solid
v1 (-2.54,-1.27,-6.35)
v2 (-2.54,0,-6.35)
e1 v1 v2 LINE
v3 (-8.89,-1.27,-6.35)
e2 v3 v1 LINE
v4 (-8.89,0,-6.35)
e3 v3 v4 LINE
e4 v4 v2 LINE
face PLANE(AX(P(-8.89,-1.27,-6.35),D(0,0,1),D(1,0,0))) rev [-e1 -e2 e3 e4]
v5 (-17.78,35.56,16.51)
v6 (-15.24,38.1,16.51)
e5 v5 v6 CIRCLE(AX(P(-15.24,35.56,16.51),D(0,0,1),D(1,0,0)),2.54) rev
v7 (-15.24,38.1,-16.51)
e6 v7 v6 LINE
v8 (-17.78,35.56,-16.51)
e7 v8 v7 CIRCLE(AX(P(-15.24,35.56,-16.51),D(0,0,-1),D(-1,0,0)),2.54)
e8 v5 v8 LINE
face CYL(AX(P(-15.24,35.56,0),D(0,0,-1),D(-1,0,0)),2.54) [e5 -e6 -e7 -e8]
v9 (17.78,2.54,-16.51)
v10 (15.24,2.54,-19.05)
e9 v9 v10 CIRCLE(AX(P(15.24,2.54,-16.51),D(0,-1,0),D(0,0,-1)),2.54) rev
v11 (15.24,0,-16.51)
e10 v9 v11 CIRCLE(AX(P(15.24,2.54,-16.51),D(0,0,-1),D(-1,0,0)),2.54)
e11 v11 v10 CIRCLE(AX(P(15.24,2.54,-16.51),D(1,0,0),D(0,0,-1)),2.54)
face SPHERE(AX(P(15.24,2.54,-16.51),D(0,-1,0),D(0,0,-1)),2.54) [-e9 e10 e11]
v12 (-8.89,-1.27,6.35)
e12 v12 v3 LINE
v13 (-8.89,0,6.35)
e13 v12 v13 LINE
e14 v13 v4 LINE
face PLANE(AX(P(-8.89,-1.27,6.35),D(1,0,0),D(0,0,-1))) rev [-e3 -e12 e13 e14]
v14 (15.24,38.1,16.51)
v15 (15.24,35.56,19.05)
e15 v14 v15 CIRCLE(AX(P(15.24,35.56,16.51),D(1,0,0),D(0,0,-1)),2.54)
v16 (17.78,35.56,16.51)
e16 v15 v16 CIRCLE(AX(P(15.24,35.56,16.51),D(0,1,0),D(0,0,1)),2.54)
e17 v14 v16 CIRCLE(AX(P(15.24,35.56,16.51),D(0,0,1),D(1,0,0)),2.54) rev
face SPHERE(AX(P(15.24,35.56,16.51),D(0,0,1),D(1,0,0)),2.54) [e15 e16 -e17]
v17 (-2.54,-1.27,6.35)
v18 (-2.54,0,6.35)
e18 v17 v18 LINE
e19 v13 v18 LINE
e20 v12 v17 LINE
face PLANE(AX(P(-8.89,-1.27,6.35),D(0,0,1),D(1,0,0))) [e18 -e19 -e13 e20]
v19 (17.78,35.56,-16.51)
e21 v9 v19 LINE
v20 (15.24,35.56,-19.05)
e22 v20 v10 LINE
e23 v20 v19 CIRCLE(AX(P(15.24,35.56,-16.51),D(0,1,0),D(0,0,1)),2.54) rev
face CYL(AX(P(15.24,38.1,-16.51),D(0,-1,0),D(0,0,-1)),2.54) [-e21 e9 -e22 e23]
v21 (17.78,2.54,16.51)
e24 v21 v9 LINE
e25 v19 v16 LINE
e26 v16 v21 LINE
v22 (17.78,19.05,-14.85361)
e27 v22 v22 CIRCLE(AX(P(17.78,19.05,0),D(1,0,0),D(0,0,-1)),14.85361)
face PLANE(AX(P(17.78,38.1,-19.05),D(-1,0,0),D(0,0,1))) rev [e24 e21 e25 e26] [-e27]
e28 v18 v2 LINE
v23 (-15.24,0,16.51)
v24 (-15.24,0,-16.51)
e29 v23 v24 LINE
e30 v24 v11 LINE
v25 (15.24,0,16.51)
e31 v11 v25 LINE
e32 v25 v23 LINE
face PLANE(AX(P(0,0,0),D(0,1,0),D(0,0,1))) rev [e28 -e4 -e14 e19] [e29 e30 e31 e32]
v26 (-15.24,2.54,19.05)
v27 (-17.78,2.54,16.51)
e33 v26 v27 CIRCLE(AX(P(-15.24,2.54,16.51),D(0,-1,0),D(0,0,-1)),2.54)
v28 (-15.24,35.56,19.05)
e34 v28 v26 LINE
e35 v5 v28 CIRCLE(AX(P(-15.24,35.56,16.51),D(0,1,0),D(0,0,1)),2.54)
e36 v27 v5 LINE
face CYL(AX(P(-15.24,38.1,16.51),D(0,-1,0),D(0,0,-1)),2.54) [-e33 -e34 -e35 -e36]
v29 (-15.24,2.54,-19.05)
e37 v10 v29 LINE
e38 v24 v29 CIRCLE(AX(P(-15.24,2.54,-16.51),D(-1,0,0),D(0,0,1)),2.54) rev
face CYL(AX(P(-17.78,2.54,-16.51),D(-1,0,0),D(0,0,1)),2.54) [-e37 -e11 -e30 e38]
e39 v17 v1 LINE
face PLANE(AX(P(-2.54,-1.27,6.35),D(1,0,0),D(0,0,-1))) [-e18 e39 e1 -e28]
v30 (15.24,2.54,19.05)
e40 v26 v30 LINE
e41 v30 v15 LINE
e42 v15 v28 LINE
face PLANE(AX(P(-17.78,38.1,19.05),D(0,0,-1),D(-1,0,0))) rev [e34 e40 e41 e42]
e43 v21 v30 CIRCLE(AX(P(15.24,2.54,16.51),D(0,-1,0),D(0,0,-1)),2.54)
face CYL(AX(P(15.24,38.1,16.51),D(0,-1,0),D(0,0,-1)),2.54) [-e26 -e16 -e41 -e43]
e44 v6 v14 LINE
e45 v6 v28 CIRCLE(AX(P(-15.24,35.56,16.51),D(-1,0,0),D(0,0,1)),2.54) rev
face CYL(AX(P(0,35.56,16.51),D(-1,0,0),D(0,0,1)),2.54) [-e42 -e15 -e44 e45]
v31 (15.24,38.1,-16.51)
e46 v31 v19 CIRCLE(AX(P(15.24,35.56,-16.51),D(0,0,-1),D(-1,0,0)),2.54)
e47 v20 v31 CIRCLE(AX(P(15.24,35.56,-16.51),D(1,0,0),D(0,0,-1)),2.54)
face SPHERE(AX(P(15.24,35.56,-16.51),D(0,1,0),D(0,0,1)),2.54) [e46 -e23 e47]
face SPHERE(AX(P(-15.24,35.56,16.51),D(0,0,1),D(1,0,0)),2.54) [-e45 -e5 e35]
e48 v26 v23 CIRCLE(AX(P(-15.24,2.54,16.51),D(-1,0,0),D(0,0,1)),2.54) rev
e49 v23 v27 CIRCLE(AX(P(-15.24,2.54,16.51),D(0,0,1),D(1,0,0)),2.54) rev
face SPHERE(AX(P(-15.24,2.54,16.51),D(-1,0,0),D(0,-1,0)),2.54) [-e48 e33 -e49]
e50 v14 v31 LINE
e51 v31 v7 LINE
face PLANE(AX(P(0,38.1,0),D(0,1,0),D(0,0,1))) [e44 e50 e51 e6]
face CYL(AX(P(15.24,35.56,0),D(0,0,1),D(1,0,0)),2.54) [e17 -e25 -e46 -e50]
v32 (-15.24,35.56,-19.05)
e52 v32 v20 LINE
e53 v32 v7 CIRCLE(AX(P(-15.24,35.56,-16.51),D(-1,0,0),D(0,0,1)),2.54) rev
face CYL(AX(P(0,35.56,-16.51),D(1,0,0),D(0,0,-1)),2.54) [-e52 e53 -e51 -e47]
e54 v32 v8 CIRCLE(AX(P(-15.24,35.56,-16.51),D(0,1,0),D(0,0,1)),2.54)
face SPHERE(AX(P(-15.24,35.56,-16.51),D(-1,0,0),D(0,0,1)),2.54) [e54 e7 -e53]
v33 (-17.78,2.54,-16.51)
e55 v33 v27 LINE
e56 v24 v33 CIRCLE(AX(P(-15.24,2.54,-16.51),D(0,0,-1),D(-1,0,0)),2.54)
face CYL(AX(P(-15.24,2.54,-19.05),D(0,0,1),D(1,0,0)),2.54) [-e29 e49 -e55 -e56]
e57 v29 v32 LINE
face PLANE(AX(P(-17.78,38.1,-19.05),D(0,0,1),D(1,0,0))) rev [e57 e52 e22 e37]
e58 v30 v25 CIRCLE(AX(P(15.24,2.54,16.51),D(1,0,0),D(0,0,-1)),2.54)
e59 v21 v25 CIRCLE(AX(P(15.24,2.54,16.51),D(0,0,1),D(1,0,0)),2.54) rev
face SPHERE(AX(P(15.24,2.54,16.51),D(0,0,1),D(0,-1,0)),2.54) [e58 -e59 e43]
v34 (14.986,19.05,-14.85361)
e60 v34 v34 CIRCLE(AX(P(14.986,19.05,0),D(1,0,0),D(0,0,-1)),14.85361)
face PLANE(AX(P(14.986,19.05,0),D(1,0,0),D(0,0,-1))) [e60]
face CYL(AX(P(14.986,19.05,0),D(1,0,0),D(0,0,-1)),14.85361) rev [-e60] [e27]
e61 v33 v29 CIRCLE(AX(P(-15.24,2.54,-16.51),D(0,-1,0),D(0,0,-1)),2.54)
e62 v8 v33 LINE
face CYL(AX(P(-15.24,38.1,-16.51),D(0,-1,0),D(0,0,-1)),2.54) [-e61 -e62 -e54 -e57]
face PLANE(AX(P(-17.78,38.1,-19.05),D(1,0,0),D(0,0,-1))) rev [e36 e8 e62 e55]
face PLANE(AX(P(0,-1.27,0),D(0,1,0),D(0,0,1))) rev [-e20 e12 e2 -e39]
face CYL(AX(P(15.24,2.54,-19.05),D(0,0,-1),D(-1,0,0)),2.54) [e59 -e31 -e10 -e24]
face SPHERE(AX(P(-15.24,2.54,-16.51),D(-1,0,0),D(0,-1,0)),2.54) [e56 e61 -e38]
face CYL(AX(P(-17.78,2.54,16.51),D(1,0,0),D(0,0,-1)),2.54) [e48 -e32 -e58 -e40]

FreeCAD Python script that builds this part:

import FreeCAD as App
import Part
import Sketcher

V = App.Vector
Q = App.Units.Quantity

doc = App.newDocument("Part")
params = doc.addObject("Spreadsheet::Sheet", "Params")
for row, (alias, value) in enumerate([
    ("sketch1_width", "1.4 in"),
    ("sketch1_height", "1.5 in"),
    ("pad1_length", "1.5 in"),
    ("fillet_radius", "0.1 in"),
    ("pocket1_length", "0.11 in"),
    ("sketch3_height", "0.5 in"),
    ("sketch3_width", "0.25 in"),
    ("pad2_length", "0.05 in"),
], start=1):
    params.set(f"A{row}", alias)
    params.set(f"B{row}", "=" + value)
    params.setAlias(f"B{row}", alias)

body = doc.addObject("PartDesign::Body", "Body")

sketch1 = body.newObject("Sketcher::SketchObject", "Sketch")
sketch1.AttachmentSupport = (doc.getObject("XZ_Plane"), [""])
sketch1.MapMode = "FlatFace"
sketch1.addGeometry(Part.LineSegment(V(-17.78, -19.05, 0), V(-17.78, 19.05, 0)), False)
sketch1.addGeometry(Part.LineSegment(V(-17.78, 19.05, 0), V(17.78, 19.05, 0)), False)
sketch1.addGeometry(Part.LineSegment(V(17.78, 19.05, 0), V(17.78, -19.05, 0)), False)
sketch1.addGeometry(Part.LineSegment(V(17.78, -19.05, 0), V(-17.78, -19.05, 0)), False)
sketch1.addConstraint(Sketcher.Constraint("Coincident", 0, 2, 1, 1))
sketch1.addConstraint(Sketcher.Constraint("Coincident", 1, 2, 2, 1))
sketch1.addConstraint(Sketcher.Constraint("Coincident", 2, 2, 3, 1))
sketch1.addConstraint(Sketcher.Constraint("Coincident", 3, 2, 0, 1))
sketch1.addConstraint(Sketcher.Constraint("Vertical", 0))
sketch1.addConstraint(Sketcher.Constraint("Horizontal", 1))
sketch1.addConstraint(Sketcher.Constraint("Vertical", 2))
sketch1.addConstraint(Sketcher.Constraint("Horizontal", 3))
sketch1.addConstraint(Sketcher.Constraint("Symmetric", 0, 2, 2, 2, -1, 1))
sketch1.addConstraint(Sketcher.Constraint("DistanceX", 1, 1, 1, 2, Q("1.4 in")))
sketch1.addConstraint(Sketcher.Constraint("DistanceY", 0, 1, 0, 2, Q("1.5 in")))
sketch1.setExpression("Constraints[9]", "Params.sketch1_width")
sketch1.setExpression("Constraints[10]", "Params.sketch1_height")
pad1 = body.newObject("PartDesign::Pad", "Pad")
pad1.Profile = sketch1
pad1.setExpression("Length", "Params.pad1_length")
pad1.Reversed = True
doc.recompute()

fillet = body.newObject("PartDesign::Fillet", "Fillet")
fillet.Base = (pad1, ["Edge1"])
fillet.UseAllEdges = True
fillet.setExpression("Radius", "Params.fillet_radius")

sketch2 = body.newObject("Sketcher::SketchObject", "Sketch001")
sketch2.AttachmentSupport = (doc.getObject("YZ_Plane"), [""])
sketch2.MapMode = "FlatFace"
sketch2.AttachmentOffset = App.Placement(V(0, 0, 0.7 * 25.4), App.Rotation())
sketch2.addGeometry(Part.Circle(V(19.05, 0, 0), V(0, 0, 1), 14.85361), False)
sketch2.addConstraint(Sketcher.Constraint("PointOnObject", 0, 3, -1))
sketch2.addConstraint(Sketcher.Constraint("DistanceX", -1, 1, 0, 3, Q("0.75 in")))
sketch2.addConstraint(Sketcher.Constraint("Diameter", 0, Q("29.70722 mm")))
pocket1 = body.newObject("PartDesign::Pocket", "Pocket")
pocket1.Profile = sketch2
pocket1.setExpression("Length", "Params.pocket1_length")

sketch3 = body.newObject("Sketcher::SketchObject", "Sketch002")
sketch3.AttachmentSupport = (doc.getObject("XZ_Plane"), [""])
sketch3.MapMode = "FlatFace"
sketch3.addGeometry(Part.LineSegment(V(-8.89, 6.35, 0), V(-8.89, -6.35, 0)), False)
sketch3.addGeometry(Part.LineSegment(V(-8.89, -6.35, 0), V(-2.54, -6.35, 0)), False)
sketch3.addGeometry(Part.LineSegment(V(-2.54, -6.35, 0), V(-2.54, 6.35, 0)), False)
sketch3.addGeometry(Part.LineSegment(V(-2.54, 6.35, 0), V(-8.89, 6.35, 0)), False)
sketch3.addConstraint(Sketcher.Constraint("Coincident", 0, 2, 1, 1))
sketch3.addConstraint(Sketcher.Constraint("Coincident", 1, 2, 2, 1))
sketch3.addConstraint(Sketcher.Constraint("Coincident", 2, 2, 3, 1))
sketch3.addConstraint(Sketcher.Constraint("Coincident", 3, 2, 0, 1))
sketch3.addConstraint(Sketcher.Constraint("Vertical", 0))
sketch3.addConstraint(Sketcher.Constraint("Horizontal", 1))
sketch3.addConstraint(Sketcher.Constraint("Vertical", 2))
sketch3.addConstraint(Sketcher.Constraint("Horizontal", 3))
sketch3.addConstraint(Sketcher.Constraint("DistanceY", 0, 2, 0, 1, Q("0.5 in")))
sketch3.addConstraint(Sketcher.Constraint("DistanceX", 1, 1, 1, 2, Q("0.25 in")))
sketch3.addConstraint(Sketcher.Constraint("DistanceX", 1, 2, -1, 1, Q("0.1 in")))
sketch3.addConstraint(Sketcher.Constraint("DistanceY", 0, 2, -1, 1, Q("0.25 in")))
sketch3.setExpression("Constraints[8]", "Params.sketch3_height")
sketch3.setExpression("Constraints[9]", "Params.sketch3_width")
pad2 = body.newObject("PartDesign::Pad", "Pad001")
pad2.Profile = sketch3
pad2.setExpression("Length", "Params.pad2_length")

doc.recompute()
